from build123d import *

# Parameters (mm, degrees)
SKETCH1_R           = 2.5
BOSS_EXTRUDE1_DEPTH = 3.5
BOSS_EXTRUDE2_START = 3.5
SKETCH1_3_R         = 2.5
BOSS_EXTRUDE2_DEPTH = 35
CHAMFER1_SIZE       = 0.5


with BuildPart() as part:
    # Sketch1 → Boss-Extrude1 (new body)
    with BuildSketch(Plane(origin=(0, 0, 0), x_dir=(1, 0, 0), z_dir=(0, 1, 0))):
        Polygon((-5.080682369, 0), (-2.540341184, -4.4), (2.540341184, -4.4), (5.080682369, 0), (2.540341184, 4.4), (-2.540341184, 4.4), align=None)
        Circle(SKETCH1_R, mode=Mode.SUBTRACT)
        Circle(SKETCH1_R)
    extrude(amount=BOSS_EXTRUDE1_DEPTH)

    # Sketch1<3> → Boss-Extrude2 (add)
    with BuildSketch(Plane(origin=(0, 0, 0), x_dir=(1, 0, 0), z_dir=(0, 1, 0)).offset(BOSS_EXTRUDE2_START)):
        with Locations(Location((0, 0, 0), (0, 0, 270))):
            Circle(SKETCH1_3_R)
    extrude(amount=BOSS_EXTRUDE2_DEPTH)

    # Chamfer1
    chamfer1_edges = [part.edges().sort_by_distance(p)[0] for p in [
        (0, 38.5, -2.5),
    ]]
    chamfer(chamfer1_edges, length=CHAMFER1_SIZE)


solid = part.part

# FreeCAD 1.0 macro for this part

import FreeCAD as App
import Part
import Sketcher
Q = App.Units.Quantity


def edges_at(feature, points):
    """Names of the edges that pass closest to the given points."""
    edges = feature.Shape.Edges
    near = lambda p: min(range(len(edges)), key=lambda i: edges[i].distToShape(Part.Vertex(*p))[0])
    return sorted({f"Edge{near(p) + 1}" for p in points})

doc = App.newDocument("Part")
body = doc.addObject("PartDesign::Body", "Body")

# Sketch on XZ plane
sketch1 = body.newObject("Sketcher::SketchObject", "Sketch")
sketch1.AttachmentSupport = (doc.getObject("XZ_Plane"), [""])
sketch1.MapMode = "FlatFace"
sketch1.addGeometry([
    Part.LineSegment(App.Vector(-5, 0, 0), App.Vector(-3, 4, 0)),  # 0
    Part.LineSegment(App.Vector(-3, 4, 0), App.Vector(3, 4, 0)),  # 1
    Part.LineSegment(App.Vector(3, 4, 0), App.Vector(5, 0, 0)),  # 2
    Part.LineSegment(App.Vector(5, 0, 0), App.Vector(3, -4, 0)),  # 3
    Part.LineSegment(App.Vector(3, -4, 0), App.Vector(-3, -4, 0)),  # 4
    Part.LineSegment(App.Vector(-3, -4, 0), App.Vector(-5, 0, 0)),  # 5
], False)
sketch1.addConstraint([
    Sketcher.Constraint("Coincident", 0, 2, 1, 1),
    Sketcher.Constraint("Coincident", 1, 2, 2, 1),
    Sketcher.Constraint("Coincident", 2, 2, 3, 1),
    Sketcher.Constraint("Coincident", 3, 2, 4, 1),
    Sketcher.Constraint("Coincident", 4, 2, 5, 1),
    Sketcher.Constraint("Coincident", 5, 2, 0, 1),
    Sketcher.Constraint("Horizontal", 1),
    Sketcher.Constraint("Horizontal", 4),
    Sketcher.Constraint("Symmetric", 0, 2, 3, 2, -1, 1),
    Sketcher.Constraint("Symmetric", 2, 2, 5, 2, -1, 1),
    Sketcher.Constraint("PointOnObject", 2, 2, -1),
    Sketcher.Constraint("Parallel", 2, 5),
    Sketcher.Constraint("Vertical", 1, 2, 3, 2),
    Sketcher.Constraint("Angle", 0, Q("60 deg")),
    Sketcher.Constraint("DistanceY", -1, 1, 0, 2, 4.4),
    Sketcher.Constraint("DistanceX", 1, 1, 1, 2, 5.080682),
])
pad1 = body.newObject("PartDesign::Pad", "Pad")
pad1.Profile = sketch1
pad1.Length = 3.5
pad1.Reversed = True

# Sketch on XZ plane
sketch2 = body.newObject("Sketcher::SketchObject", "Sketch001")
sketch2.AttachmentSupport = (doc.getObject("XZ_Plane"), [""])
sketch2.MapMode = "FlatFace"
sketch2.AttachmentOffset = App.Placement(App.Vector(0, 0, -3.5), App.Rotation())
sketch2.addGeometry(Part.Circle(App.Vector(0, 0, 0), App.Vector(0, 0, 1), 2.5), False)
sketch2.addConstraint([
    Sketcher.Constraint("Coincident", 0, 3, -1, 1),
    Sketcher.Constraint("Diameter", 0, 5.0),
])
pad2 = body.newObject("PartDesign::Pad", "Pad001")
pad2.Profile = sketch2
pad2.Length = 35
pad2.Reversed = True
doc.recompute()

chamfer = body.newObject("PartDesign::Chamfer", "Chamfer")
chamfer.Base = (pad2, edges_at(pad2, [(0, 38.5, -2.5)]))
chamfer.Size = 0.5

doc.recompute()
